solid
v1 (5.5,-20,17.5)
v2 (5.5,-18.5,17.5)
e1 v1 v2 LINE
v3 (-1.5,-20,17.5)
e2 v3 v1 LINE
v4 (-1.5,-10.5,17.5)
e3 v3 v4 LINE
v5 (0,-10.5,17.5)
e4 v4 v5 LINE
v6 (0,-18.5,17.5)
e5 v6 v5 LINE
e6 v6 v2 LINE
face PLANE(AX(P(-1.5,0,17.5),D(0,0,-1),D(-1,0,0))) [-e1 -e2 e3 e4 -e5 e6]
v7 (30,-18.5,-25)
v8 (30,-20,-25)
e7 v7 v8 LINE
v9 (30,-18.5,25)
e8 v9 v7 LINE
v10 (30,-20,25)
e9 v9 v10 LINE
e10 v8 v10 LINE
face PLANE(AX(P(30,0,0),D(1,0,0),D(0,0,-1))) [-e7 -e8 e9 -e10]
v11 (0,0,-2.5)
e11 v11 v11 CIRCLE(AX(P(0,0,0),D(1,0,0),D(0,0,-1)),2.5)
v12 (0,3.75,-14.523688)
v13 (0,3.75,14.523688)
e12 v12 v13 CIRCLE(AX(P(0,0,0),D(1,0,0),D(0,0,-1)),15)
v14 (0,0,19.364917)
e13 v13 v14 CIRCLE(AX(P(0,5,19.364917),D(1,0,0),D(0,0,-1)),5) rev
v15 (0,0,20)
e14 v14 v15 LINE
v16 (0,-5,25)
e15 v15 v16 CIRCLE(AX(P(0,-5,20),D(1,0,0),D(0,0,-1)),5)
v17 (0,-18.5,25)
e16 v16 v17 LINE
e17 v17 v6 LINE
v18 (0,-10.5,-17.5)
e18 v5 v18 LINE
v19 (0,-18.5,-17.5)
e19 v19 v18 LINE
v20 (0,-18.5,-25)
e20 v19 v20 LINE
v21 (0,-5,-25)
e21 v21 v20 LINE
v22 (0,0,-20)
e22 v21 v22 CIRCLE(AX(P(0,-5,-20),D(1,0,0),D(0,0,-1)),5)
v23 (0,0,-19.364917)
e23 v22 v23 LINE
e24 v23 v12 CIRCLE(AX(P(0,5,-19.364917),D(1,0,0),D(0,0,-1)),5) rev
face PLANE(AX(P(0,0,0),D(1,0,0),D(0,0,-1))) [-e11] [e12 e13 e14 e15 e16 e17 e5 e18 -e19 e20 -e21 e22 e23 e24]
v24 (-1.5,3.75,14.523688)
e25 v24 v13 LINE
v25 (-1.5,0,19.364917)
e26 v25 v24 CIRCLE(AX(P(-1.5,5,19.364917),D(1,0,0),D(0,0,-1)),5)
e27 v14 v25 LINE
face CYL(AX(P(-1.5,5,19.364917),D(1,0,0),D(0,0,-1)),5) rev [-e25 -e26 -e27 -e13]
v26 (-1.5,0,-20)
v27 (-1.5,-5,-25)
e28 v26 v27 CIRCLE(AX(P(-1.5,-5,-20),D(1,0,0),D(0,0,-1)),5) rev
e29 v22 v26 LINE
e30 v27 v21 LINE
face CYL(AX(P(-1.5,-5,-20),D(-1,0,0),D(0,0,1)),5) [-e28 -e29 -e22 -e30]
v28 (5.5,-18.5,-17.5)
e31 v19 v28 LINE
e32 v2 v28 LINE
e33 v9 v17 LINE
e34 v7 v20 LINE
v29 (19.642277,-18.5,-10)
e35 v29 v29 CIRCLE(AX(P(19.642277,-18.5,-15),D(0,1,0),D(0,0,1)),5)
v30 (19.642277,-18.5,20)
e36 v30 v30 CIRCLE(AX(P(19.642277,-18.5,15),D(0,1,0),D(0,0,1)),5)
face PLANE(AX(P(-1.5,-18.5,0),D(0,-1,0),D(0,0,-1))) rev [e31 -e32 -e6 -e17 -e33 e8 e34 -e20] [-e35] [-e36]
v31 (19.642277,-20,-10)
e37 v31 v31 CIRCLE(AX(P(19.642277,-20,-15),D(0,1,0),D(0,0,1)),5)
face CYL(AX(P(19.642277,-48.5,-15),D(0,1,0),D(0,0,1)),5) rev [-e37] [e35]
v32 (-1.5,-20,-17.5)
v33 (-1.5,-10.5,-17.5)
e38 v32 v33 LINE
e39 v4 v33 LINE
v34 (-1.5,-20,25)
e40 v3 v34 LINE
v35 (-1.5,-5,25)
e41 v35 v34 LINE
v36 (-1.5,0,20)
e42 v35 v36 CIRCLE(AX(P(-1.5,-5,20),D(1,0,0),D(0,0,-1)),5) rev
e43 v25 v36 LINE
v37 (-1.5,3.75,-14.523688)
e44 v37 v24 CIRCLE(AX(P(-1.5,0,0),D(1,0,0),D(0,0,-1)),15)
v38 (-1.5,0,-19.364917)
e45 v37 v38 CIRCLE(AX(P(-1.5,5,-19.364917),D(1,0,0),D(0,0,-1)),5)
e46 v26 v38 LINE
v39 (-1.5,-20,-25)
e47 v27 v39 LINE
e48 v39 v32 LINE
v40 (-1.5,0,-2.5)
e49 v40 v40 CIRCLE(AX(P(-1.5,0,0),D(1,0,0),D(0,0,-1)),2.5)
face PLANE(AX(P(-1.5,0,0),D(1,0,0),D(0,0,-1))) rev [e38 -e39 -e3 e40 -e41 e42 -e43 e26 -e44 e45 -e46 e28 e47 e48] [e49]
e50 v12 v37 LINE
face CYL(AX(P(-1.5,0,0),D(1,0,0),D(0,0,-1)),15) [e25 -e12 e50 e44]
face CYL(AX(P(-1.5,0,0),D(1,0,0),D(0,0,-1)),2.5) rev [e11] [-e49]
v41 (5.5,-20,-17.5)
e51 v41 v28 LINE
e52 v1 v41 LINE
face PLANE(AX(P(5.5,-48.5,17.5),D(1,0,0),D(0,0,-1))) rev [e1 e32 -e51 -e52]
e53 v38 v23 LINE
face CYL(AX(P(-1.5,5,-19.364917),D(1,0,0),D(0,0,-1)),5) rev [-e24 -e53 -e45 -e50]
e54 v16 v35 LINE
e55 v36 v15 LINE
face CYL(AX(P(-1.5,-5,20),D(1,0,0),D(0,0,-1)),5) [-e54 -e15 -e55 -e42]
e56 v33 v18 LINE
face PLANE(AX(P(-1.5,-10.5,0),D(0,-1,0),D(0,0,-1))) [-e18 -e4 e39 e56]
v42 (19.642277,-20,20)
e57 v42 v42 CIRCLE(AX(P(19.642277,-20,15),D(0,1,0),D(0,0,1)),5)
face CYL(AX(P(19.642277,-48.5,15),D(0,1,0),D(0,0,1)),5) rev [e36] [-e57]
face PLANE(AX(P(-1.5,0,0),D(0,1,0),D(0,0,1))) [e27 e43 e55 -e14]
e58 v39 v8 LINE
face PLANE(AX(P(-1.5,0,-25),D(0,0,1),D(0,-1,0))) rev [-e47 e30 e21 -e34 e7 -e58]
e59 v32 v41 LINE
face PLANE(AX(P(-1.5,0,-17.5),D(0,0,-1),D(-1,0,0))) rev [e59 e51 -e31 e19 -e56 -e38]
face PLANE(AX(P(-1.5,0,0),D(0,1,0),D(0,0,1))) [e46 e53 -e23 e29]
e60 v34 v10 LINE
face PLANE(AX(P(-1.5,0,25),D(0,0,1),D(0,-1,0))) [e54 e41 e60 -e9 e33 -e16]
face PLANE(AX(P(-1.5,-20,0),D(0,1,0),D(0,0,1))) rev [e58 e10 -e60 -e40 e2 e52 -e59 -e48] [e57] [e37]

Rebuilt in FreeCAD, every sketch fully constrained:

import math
import FreeCAD as App
import Part
import Sketcher
from FreeCAD import Vector


def edges_at(feature, points):
    """Names of the edges that pass closest to the given points."""
    edges = feature.Shape.Edges
    near = lambda p: min(range(len(edges)), key=lambda i: edges[i].distToShape(Part.Vertex(*p))[0])
    return sorted({f"Edge{near(p) + 1}" for p in points})

doc = App.newDocument("Part")
params = doc.addObject("Spreadsheet::Sheet", "Params")
for row, (alias, value) in enumerate([
    ("sketch1_diameter", "5 mm"),
    ("sketch1_radius", "15 mm"),
    ("sketch1_width", "20 mm"),
    ("sketch1_width2", "8 mm"),
    ("sketch1_height", "10 mm"),
    ("pad1_length", "1.5 mm"),
    ("sketch2_height", "50 mm"),
    ("sketch2_width", "1.5 mm"),
    ("pad2_length", "30 mm"),
    ("fillet_radius", "5 mm"),
    ("sketch3_diameter", "10 mm"),
    ("sketch3_width", "7 mm"),
    ("sketch3_height", "35 mm"),
    ("pocket1_length", "30 mm"),
], start=1):
    params.set(f"A{row}", alias)
    params.set(f"B{row}", "=" + value)
    params.setAlias(f"B{row}", alias)

body = doc.addObject("PartDesign::Body", "Body")

sketch1 = doc.addObject("Sketcher::SketchObject", "Sketch")
body.addObject(sketch1)
sketch1.AttachmentSupport = (doc.YZ_Plane, [""])
sketch1.MapMode = "FlatFace"
sketch1.addGeometry(Part.LineSegment(Vector(0, -25, 0), Vector(0, -15, 0)), False)
sketch1.addGeometry(Part.ArcOfCircle(Part.Circle(Vector(0, 0, 0), Vector(0, 0, 1), 15), math.radians(-90), math.radians(90)), False)
sketch1.addGeometry(Part.LineSegment(Vector(0, 15, 0), Vector(0, 25, 0)), False)
sketch1.addGeometry(Part.LineSegment(Vector(0, 25, 0), Vector(-20, 25, 0)), False)
sketch1.addGeometry(Part.LineSegment(Vector(-20, 25, 0), Vector(-20, -25, 0)), False)
sketch1.addGeometry(Part.LineSegment(Vector(-20, -25, 0), Vector(0, -25, 0)), False)
sketch1.addGeometry(Part.LineSegment(Vector(-18.5, -17.5, 0), Vector(-18.5, 17.5, 0)), False)
sketch1.addGeometry(Part.LineSegment(Vector(-18.5, 17.5, 0), Vector(-10.5, 17.5, 0)), False)
sketch1.addGeometry(Part.LineSegment(Vector(-10.5, 17.5, 0), Vector(-10.5, -17.5, 0)), False)
sketch1.addGeometry(Part.LineSegment(Vector(-10.5, -17.5, 0), Vector(-18.5, -17.5, 0)), False)
sketch1.addGeometry(Part.Circle(Vector(0, 0, 0), Vector(0, 0, 1), 2.5), False)
sketch1.addConstraint(Sketcher.Constraint("Coincident", 0, 2, 1, 1))
sketch1.addConstraint(Sketcher.Constraint("Coincident", 1, 2, 2, 1))
sketch1.addConstraint(Sketcher.Constraint("Coincident", 2, 2, 3, 1))
sketch1.addConstraint(Sketcher.Constraint("Coincident", 3, 2, 4, 1))
sketch1.addConstraint(Sketcher.Constraint("Coincident", 4, 2, 5, 1))
sketch1.addConstraint(Sketcher.Constraint("Coincident", 5, 2, 0, 1))
sketch1.addConstraint(Sketcher.Constraint("Coincident", 6, 2, 7, 1))
sketch1.addConstraint(Sketcher.Constraint("Coincident", 7, 2, 8, 1))
sketch1.addConstraint(Sketcher.Constraint("Coincident", 8, 2, 9, 1))
sketch1.addConstraint(Sketcher.Constraint("Coincident", 9, 2, 6, 1))
sketch1.addConstraint(Sketcher.Constraint("Vertical", 0))
sketch1.addConstraint(Sketcher.Constraint("Vertical", 2))
sketch1.addConstraint(Sketcher.Constraint("Horizontal", 3))
sketch1.addConstraint(Sketcher.Constraint("Vertical", 4))
sketch1.addConstraint(Sketcher.Constraint("Horizontal", 5))
sketch1.addConstraint(Sketcher.Constraint("Vertical", 6))
sketch1.addConstraint(Sketcher.Constraint("Horizontal", 7))
sketch1.addConstraint(Sketcher.Constraint("Vertical", 8))
sketch1.addConstraint(Sketcher.Constraint("Horizontal", 9))
sketch1.addConstraint(Sketcher.Constraint("Coincident", 1, 3, -1, 1))
sketch1.addConstraint(Sketcher.Constraint("Coincident", 10, 3, -1, 1))
sketch1.addConstraint(Sketcher.Constraint("Symmetric", 2, 2, 5, 2, -1, 1))
sketch1.addConstraint(Sketcher.Constraint("PointOnObject", 0, 2, -2))
sketch1.addConstraint(Sketcher.Constraint("Diameter", 10, 5.0))
sketch1.addConstraint(Sketcher.Constraint("Radius", 1, 15.0))
sketch1.addConstraint(Sketcher.Constraint("DistanceX", 3, 2, 3, 1, 20.0))
sketch1.addConstraint(Sketcher.Constraint("DistanceX", 7, 1, 7, 2, 8.0))
sketch1.addConstraint(Sketcher.Constraint("DistanceY", 0, 1, 0, 2, 10.0))
sketch1.addConstraint(Sketcher.Constraint("DistanceY", 6, 1, 6, 2, 35.0))
sketch1.addConstraint(Sketcher.Constraint("DistanceX", 6, 2, -1, 1, 18.5))
sketch1.addConstraint(Sketcher.Constraint("DistanceY", -1, 1, 6, 2, 17.5))
sketch1.setExpression("Constraints[23]", "Params.sketch1_diameter")
sketch1.setExpression("Constraints[24]", "Params.sketch1_radius")
sketch1.setExpression("Constraints[25]", "Params.sketch1_width")
sketch1.setExpression("Constraints[26]", "Params.sketch1_width2")
sketch1.setExpression("Constraints[27]", "Params.sketch1_height")
pad1 = doc.addObject("PartDesign::Pad", "Pad")
body.addObject(pad1)
pad1.Profile = sketch1
pad1.setExpression("Length", "Params.pad1_length")
pad1.Reversed = True

sketch2 = doc.addObject("Sketcher::SketchObject", "Sketch001")
body.addObject(sketch2)
sketch2.AttachmentSupport = (doc.YZ_Plane, [""])
sketch2.MapMode = "FlatFace"
sketch2.addGeometry(Part.LineSegment(Vector(-20, -25, 0), Vector(-18.5, -25, 0)), False)
sketch2.addGeometry(Part.LineSegment(Vector(-18.5, -25, 0), Vector(-18.5, 25, 0)), False)
sketch2.addGeometry(Part.LineSegment(Vector(-18.5, 25, 0), Vector(-20, 25, 0)), False)
sketch2.addGeometry(Part.LineSegment(Vector(-20, 25, 0), Vector(-20, -25, 0)), False)
sketch2.addConstraint(Sketcher.Constraint("Coincident", 0, 2, 1, 1))
sketch2.addConstraint(Sketcher.Constraint("Coincident", 1, 2, 2, 1))
sketch2.addConstraint(Sketcher.Constraint("Coincident", 2, 2, 3, 1))
sketch2.addConstraint(Sketcher.Constraint("Coincident", 3, 2, 0, 1))
sketch2.addConstraint(Sketcher.Constraint("Horizontal", 0))
sketch2.addConstraint(Sketcher.Constraint("Vertical", 1))
sketch2.addConstraint(Sketcher.Constraint("Horizontal", 2))
sketch2.addConstraint(Sketcher.Constraint("Vertical", 3))
sketch2.addConstraint(Sketcher.Constraint("DistanceY", 1, 1, 1, 2, 50.0))
sketch2.addConstraint(Sketcher.Constraint("DistanceX", 0, 1, 0, 2, 1.5))
sketch2.addConstraint(Sketcher.Constraint("DistanceY", 0, 2, -1, 1, 25.0))
sketch2.addConstraint(Sketcher.Constraint("DistanceX", 2, 2, -1, 1, 20.0))
sketch2.setExpression("Constraints[8]", "Params.sketch2_height")
sketch2.setExpression("Constraints[9]", "Params.sketch2_width")
pad2 = doc.addObject("PartDesign::Pad", "Pad001")
body.addObject(pad2)
pad2.Profile = sketch2
pad2.setExpression("Length", "Params.pad2_length")
doc.recompute()

fillet = doc.addObject("PartDesign::Fillet", "Fillet")
body.addObject(fillet)
fillet.Base = (pad2, edges_at(pad2, [
    (-0.75, 0, -25),
    (-0.75, 0, 25),
    (-0.75, 0, 15),
    (-0.75, 0, -15),
]))
fillet.setExpression("Radius", "Params.fillet_radius")

sketch3 = doc.addObject("Sketcher::SketchObject", "Sketch002")
body.addObject(sketch3)
sketch3.AttachmentSupport = (doc.XZ_Plane, [""])
sketch3.MapMode = "FlatFace"
sketch3.AttachmentOffset = App.Placement(Vector(0, 0, 18.5), App.Rotation())
sketch3.addGeometry(Part.Circle(Vector(20, -15, 0), Vector(0, 0, 1), 5), False)
sketch3.addGeometry(Part.Circle(Vector(20, 15, 0), Vector(0, 0, 1), 5), False)
sketch3.addGeometry(Part.LineSegment(Vector(-2, -18, 0), Vector(-2, 18, 0)), False)
sketch3.addGeometry(Part.LineSegment(Vector(-2, 18, 0), Vector(6, 18, 0)), False)
sketch3.addGeometry(Part.LineSegment(Vector(6, 18, 0), Vector(6, -18, 0)), False)
sketch3.addGeometry(Part.LineSegment(Vector(6, -18, 0), Vector(-2, -18, 0)), False)
sketch3.addConstraint(Sketcher.Constraint("Coincident", 2, 2, 3, 1))
sketch3.addConstraint(Sketcher.Constraint("Coincident", 3, 2, 4, 1))
sketch3.addConstraint(Sketcher.Constraint("Coincident", 4, 2, 5, 1))
sketch3.addConstraint(Sketcher.Constraint("Coincident", 5, 2, 2, 1))
sketch3.addConstraint(Sketcher.Constraint("Vertical", 2))
sketch3.addConstraint(Sketcher.Constraint("Horizontal", 3))
sketch3.addConstraint(Sketcher.Constraint("Vertical", 4))
sketch3.addConstraint(Sketcher.Constraint("Horizontal", 5))
sketch3.addConstraint(Sketcher.Constraint("Equal", 0, 1))
sketch3.addConstraint(Sketcher.Constraint("Symmetric", 0, 3, 1, 3, -1))
sketch3.addConstraint(Sketcher.Constraint("Diameter", 0, 10.0))
sketch3.addConstraint(Sketcher.Constraint("DistanceX", 3, 1, 3, 2, 7.0))
sketch3.addConstraint(Sketcher.Constraint("DistanceY", 2, 1, 2, 2, 35.0))
sketch3.addConstraint(Sketcher.Constraint("DistanceY", 0, 3, -1, 1, 15.0))
sketch3.addConstraint(Sketcher.Constraint("DistanceX", 2, 2, -1, 1, 1.5))
sketch3.addConstraint(Sketcher.Constraint("DistanceY", -1, 1, 2, 2, 17.5))
sketch3.addConstraint(Sketcher.Constraint("DistanceX", -1, 1, 0, 3, 19.642277))
sketch3.setExpression("Constraints[10]", "Params.sketch3_diameter")
sketch3.setExpression("Constraints[11]", "Params.sketch3_width")
sketch3.setExpression("Constraints[12]", "Params.sketch3_height")
pocket1 = doc.addObject("PartDesign::Pocket", "Pocket")
body.addObject(pocket1)
pocket1.Profile = sketch3
pocket1.setExpression("Length", "Params.pocket1_length")
pocket1.Reversed = True

doc.recompute()
